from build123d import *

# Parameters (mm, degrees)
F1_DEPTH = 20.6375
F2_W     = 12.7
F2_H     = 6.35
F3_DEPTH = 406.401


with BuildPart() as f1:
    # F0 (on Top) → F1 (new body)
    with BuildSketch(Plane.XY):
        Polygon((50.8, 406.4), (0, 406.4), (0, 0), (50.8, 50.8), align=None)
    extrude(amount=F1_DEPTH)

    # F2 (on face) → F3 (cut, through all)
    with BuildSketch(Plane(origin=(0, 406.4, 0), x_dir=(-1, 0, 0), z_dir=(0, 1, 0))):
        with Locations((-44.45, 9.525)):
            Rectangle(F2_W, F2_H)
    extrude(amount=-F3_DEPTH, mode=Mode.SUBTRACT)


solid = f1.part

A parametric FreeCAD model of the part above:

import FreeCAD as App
import Part
import Sketcher
from FreeCAD import Vector
Q = App.Units.Quantity

doc = App.newDocument("Part")
body = doc.addObject("PartDesign::Body", "Body")

# Sketch on XY plane
sketch1 = body.newObject("Sketcher::SketchObject", "Sketch")
sketch1.AttachmentSupport = (doc.getObject("XY_Plane"), [""])
sketch1.MapMode = "FlatFace"
sketch1.addGeometry(Part.LineSegment(Vector(50.8, 406.4, 0), Vector(0, 406.4, 0)), False)
sketch1.addGeometry(Part.LineSegment(Vector(0, 406.4, 0), Vector(0, 0, 0)), False)
sketch1.addGeometry(Part.LineSegment(Vector(0, 0, 0), Vector(50.8, 50.8, 0)), False)
sketch1.addGeometry(Part.LineSegment(Vector(50.8, 50.8, 0), Vector(50.8, 406.4, 0)), False)
sketch1.addConstraint(Sketcher.Constraint("Coincident", 0, 2, 1, 1))
sketch1.addConstraint(Sketcher.Constraint("Coincident", 1, 2, 2, 1))
sketch1.addConstraint(Sketcher.Constraint("Coincident", 2, 2, 3, 1))
sketch1.addConstraint(Sketcher.Constraint("Coincident", 3, 2, 0, 1))
sketch1.addConstraint(Sketcher.Constraint("Horizontal", 0))
sketch1.addConstraint(Sketcher.Constraint("Vertical", 1))
sketch1.addConstraint(Sketcher.Constraint("Vertical", 3))
sketch1.addConstraint(Sketcher.Constraint("Coincident", 1, 2, -1, 1))
sketch1.addConstraint(Sketcher.Constraint("DistanceX", 0, 2, 0, 1, Q("2 in")))
sketch1.addConstraint(Sketcher.Constraint("DistanceY", 1, 2, 1, 1, Q("16 in")))
sketch1.addConstraint(Sketcher.Constraint("DistanceY", 3, 1, 3, 2, Q("14 in")))
pad1 = body.newObject("PartDesign::Pad", "Pad")
pad1.Profile = sketch1
pad1.Length = Q("0.8125 in")

# Sketch on XZ plane
sketch2 = body.newObject("Sketcher::SketchObject", "Sketch001")
sketch2.AttachmentSupport = (doc.getObject("XZ_Plane"), [""])
sketch2.MapMode = "FlatFace"
sketch2.AttachmentOffset = App.Placement(Vector(0, 0, -16 * 25.4), App.Rotation())
sketch2.addGeometry(Part.LineSegment(Vector(50.8, 12.7, 0), Vector(50.8, 6.35, 0)), False)
sketch2.addGeometry(Part.LineSegment(Vector(50.8, 6.35, 0), Vector(38.1, 6.35, 0)), False)
sketch2.addGeometry(Part.LineSegment(Vector(38.1, 6.35, 0), Vector(38.1, 12.7, 0)), False)
sketch2.addGeometry(Part.LineSegment(Vector(38.1, 12.7, 0), Vector(50.8, 12.7, 0)), False)
sketch2.addConstraint(Sketcher.Constraint("Coincident", 0, 2, 1, 1))
sketch2.addConstraint(Sketcher.Constraint("Coincident", 1, 2, 2, 1))
sketch2.addConstraint(Sketcher.Constraint("Coincident", 2, 2, 3, 1))
sketch2.addConstraint(Sketcher.Constraint("Coincident", 3, 2, 0, 1))
sketch2.addConstraint(Sketcher.Constraint("Vertical", 0))
sketch2.addConstraint(Sketcher.Constraint("Horizontal", 1))
sketch2.addConstraint(Sketcher.Constraint("Vertical", 2))
sketch2.addConstraint(Sketcher.Constraint("Horizontal", 3))
sketch2.addConstraint(Sketcher.Constraint("DistanceX", 1, 2, 1, 1, Q("0.5 in")))
sketch2.addConstraint(Sketcher.Constraint("DistanceX", -1, 1, 0, 2, Q("2 in")))
sketch2.addConstraint(Sketcher.Constraint("DistanceY", 0, 2, 0, 1, Q("0.25 in")))
sketch2.addConstraint(Sketcher.Constraint("DistanceY", -1, 1, 2, 2, Q("0.5 in")))
pocket1 = body.newObject("PartDesign::Pocket", "Pocket")
pocket1.Profile = sketch2
pocket1.Type = "ThroughAll"
pocket1.Reversed = True

doc.recompute()
